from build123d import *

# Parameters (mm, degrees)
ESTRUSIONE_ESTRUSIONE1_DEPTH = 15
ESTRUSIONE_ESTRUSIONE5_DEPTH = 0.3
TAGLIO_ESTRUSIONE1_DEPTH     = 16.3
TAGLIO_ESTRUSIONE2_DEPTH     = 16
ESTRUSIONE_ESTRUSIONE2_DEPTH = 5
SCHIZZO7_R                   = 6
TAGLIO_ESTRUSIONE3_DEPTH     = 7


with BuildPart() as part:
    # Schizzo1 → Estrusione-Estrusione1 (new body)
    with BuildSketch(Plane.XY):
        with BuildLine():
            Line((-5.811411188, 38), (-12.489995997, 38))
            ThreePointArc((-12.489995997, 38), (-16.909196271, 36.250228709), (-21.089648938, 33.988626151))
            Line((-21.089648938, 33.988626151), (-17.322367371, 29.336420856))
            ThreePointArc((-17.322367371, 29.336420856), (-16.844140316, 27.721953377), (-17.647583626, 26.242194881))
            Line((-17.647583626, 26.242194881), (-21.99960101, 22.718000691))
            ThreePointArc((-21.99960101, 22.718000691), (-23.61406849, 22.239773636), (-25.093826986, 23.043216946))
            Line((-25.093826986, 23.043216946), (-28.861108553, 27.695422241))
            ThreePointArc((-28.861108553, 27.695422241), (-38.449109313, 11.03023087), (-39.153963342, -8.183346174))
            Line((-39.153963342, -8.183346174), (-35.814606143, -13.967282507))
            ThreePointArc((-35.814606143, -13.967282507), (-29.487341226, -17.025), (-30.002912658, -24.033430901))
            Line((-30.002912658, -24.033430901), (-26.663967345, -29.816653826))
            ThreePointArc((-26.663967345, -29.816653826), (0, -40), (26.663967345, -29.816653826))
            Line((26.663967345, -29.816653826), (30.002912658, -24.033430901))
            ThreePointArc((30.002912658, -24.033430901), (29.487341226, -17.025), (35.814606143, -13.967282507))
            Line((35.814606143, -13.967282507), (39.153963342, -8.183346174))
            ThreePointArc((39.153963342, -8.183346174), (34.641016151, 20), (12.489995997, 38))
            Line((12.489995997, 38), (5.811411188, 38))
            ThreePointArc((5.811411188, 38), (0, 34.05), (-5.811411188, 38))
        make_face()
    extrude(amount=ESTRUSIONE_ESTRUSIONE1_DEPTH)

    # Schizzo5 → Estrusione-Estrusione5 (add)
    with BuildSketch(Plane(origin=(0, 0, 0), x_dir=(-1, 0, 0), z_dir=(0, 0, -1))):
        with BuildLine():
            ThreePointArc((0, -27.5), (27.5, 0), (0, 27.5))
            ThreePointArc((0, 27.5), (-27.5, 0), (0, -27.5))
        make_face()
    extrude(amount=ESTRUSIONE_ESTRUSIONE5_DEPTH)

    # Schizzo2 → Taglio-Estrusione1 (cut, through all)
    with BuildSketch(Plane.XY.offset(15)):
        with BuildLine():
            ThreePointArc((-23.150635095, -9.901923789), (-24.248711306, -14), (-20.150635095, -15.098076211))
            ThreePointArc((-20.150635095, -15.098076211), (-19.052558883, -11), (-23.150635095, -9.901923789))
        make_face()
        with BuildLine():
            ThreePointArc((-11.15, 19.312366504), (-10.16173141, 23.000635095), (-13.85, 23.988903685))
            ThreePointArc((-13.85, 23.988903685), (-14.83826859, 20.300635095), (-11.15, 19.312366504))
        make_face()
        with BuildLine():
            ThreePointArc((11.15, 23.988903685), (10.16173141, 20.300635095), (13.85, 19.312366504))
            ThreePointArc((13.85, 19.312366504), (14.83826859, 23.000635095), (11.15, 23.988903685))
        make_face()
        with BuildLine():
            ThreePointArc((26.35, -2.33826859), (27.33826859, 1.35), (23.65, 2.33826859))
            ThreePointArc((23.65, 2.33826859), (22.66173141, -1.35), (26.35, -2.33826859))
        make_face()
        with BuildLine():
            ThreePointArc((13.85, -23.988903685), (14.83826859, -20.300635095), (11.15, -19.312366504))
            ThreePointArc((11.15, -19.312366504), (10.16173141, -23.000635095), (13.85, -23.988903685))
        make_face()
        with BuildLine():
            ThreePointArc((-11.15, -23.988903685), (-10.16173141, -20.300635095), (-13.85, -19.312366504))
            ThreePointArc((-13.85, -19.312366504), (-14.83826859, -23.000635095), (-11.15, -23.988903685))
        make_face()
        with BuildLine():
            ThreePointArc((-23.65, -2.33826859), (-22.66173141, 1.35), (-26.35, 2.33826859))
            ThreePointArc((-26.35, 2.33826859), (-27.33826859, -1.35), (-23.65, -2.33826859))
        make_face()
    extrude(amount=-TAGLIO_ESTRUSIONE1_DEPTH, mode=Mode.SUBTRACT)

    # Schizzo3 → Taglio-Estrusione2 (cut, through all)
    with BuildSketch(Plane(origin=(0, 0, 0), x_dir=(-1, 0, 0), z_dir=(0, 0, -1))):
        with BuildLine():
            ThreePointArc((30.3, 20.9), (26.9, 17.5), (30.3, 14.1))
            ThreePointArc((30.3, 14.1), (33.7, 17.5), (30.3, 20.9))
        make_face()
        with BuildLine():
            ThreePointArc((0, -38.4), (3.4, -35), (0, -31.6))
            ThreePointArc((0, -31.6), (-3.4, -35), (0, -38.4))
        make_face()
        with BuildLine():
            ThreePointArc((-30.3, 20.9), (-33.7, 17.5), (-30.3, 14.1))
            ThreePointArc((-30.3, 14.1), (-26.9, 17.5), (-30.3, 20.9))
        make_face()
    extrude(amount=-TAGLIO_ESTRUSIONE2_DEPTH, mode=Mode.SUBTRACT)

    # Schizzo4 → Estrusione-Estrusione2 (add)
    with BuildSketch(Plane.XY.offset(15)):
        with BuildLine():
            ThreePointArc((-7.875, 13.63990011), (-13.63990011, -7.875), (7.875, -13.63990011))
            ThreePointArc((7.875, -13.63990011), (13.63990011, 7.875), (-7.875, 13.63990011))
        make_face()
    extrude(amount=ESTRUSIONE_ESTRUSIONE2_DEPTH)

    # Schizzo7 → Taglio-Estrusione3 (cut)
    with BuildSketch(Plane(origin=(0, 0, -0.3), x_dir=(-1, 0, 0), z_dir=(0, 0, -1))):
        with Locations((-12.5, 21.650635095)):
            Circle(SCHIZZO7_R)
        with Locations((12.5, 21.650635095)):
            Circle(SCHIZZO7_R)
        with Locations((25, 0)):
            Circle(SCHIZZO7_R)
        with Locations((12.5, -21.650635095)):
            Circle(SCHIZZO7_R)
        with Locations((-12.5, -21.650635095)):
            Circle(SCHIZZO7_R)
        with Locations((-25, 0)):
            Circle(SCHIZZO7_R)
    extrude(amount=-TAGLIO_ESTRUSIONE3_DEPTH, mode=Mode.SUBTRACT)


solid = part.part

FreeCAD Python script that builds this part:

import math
import FreeCAD as App
import Part
import Sketcher
Q = App.Units.Quantity

doc = App.newDocument("Part")
body = doc.addObject("PartDesign::Body", "Body")

# Sketch on XY plane
sketch1 = body.newObject("Sketcher::SketchObject", "Sketch")
sketch1.AttachmentSupport = (doc.getObject("XY_Plane"), [""])
sketch1.MapMode = "FlatFace"
sketch1.addGeometry(Part.LineSegment(App.Vector(-5.8, 38, 0), App.Vector(-12.5, 38, 0)), False)
sketch1.addGeometry(Part.ArcOfCircle(Part.Circle(App.Vector(0, 0, 0), App.Vector(0, 0, 1), 40), math.radians(108.19), math.radians(121.82)), False)
sketch1.addGeometry(Part.LineSegment(App.Vector(-21.1, 34, 0), App.Vector(-17.3, 29.3, 0)), False)
sketch1.addGeometry(Part.ArcOfCircle(Part.Circle(App.Vector(-19, 28, 0), App.Vector(0, 0, 1), 2.2), math.radians(-51), math.radians(39)), False)
sketch1.addGeometry(Part.LineSegment(App.Vector(-17.6, 26.2, 0), App.Vector(-22, 22.7, 0)), False)
sketch1.addGeometry(Part.ArcOfCircle(Part.Circle(App.Vector(-23.4, 24.4, 0), App.Vector(0, 0, 1), 2.2), math.radians(-141), math.radians(-51)), False)
sketch1.addGeometry(Part.LineSegment(App.Vector(-25.1, 23, 0), App.Vector(-28.9, 27.7, 0)), False)
sketch1.addGeometry(Part.ArcOfCircle(Part.Circle(App.Vector(0, 0, 0), App.Vector(0, 0, 1), 40), math.radians(136), math.radians(192)), False)
sketch1.addGeometry(Part.LineSegment(App.Vector(-39.2, -8.2, 0), App.Vector(-35.8, -14, 0)), False)
sketch1.addGeometry(Part.ArcOfCircle(Part.Circle(App.Vector(-34.9, -20.1, 0), App.Vector(0, 0, 1), 6.2), math.radians(-38), math.radians(98)), False)
sketch1.addGeometry(Part.LineSegment(App.Vector(-30, -24, 0), App.Vector(-26.7, -29.8, 0)), False)
sketch1.addGeometry(Part.ArcOfCircle(Part.Circle(App.Vector(0, 0, 0), App.Vector(0, 0, 1), 40), math.radians(-132), math.radians(-48)), False)
sketch1.addGeometry(Part.LineSegment(App.Vector(26.7, -29.8, 0), App.Vector(30, -24, 0)), False)
sketch1.addGeometry(Part.ArcOfCircle(Part.Circle(App.Vector(34.9, -20.1, 0), App.Vector(0, 0, 1), 6.2), math.radians(82), math.radians(218)), False)
sketch1.addGeometry(Part.LineSegment(App.Vector(35.8, -14, 0), App.Vector(39.2, -8.2, 0)), False)
sketch1.addGeometry(Part.ArcOfCircle(Part.Circle(App.Vector(0, 0, 0), App.Vector(0, 0, 1), 40), math.radians(-12), math.radians(72)), False)
sketch1.addGeometry(Part.LineSegment(App.Vector(12.5, 38, 0), App.Vector(5.8, 38, 0)), False)
sketch1.addGeometry(Part.ArcOfCircle(Part.Circle(App.Vector(0, 40.3, 0), App.Vector(0, 0, 1), 6.2), math.radians(-158), math.radians(-22)), False)
sketch1.addConstraint(Sketcher.Constraint("Coincident", 0, 2, 1, 1))
sketch1.addConstraint(Sketcher.Constraint("Coincident", 1, 2, 2, 1))
sketch1.addConstraint(Sketcher.Constraint("Tangent", 2, 2, 3, 2))
sketch1.addConstraint(Sketcher.Constraint("Tangent", 3, 1, 4, 1))
sketch1.addConstraint(Sketcher.Constraint("Tangent", 4, 2, 5, 2))
sketch1.addConstraint(Sketcher.Constraint("Tangent", 5, 1, 6, 1))
sketch1.addConstraint(Sketcher.Constraint("Coincident", 6, 2, 7, 1))
sketch1.addConstraint(Sketcher.Constraint("Coincident", 7, 2, 8, 1))
sketch1.addConstraint(Sketcher.Constraint("Coincident", 8, 2, 9, 2))
sketch1.addConstraint(Sketcher.Constraint("Coincident", 9, 1, 10, 1))
sketch1.addConstraint(Sketcher.Constraint("Coincident", 10, 2, 11, 1))
sketch1.addConstraint(Sketcher.Constraint("Coincident", 11, 2, 12, 1))
sketch1.addConstraint(Sketcher.Constraint("Coincident", 12, 2, 13, 2))
sketch1.addConstraint(Sketcher.Constraint("Coincident", 13, 1, 14, 1))
sketch1.addConstraint(Sketcher.Constraint("Coincident", 14, 2, 15, 1))
sketch1.addConstraint(Sketcher.Constraint("Coincident", 15, 2, 16, 1))
sketch1.addConstraint(Sketcher.Constraint("Coincident", 16, 2, 17, 2))
sketch1.addConstraint(Sketcher.Constraint("Coincident", 17, 1, 0, 1))
sketch1.addConstraint(Sketcher.Constraint("Horizontal", 0))
sketch1.addConstraint(Sketcher.Constraint("Horizontal", 16))
sketch1.addConstraint(Sketcher.Constraint("Coincident", 1, 3, -1, 1))
sketch1.addConstraint(Sketcher.Constraint("Coincident", 7, 3, -1, 1))
sketch1.addConstraint(Sketcher.Constraint("Coincident", 11, 3, -1, 1))
sketch1.addConstraint(Sketcher.Constraint("Coincident", 15, 3, -1, 1))
sketch1.addConstraint(Sketcher.Constraint("Equal", 3, 5))
sketch1.addConstraint(Sketcher.Constraint("Equal", 1, 7))
sketch1.addConstraint(Sketcher.Constraint("Equal", 7, 11))
sketch1.addConstraint(Sketcher.Constraint("Equal", 9, 13))
sketch1.addConstraint(Sketcher.Constraint("Equal", 11, 15))
sketch1.addConstraint(Sketcher.Constraint("Equal", 13, 17))
sketch1.addConstraint(Sketcher.Constraint("Symmetric", 9, 3, 13, 3, -2))
sketch1.addConstraint(Sketcher.Constraint("Symmetric", 16, 2, 17, 1, -2))
sketch1.addConstraint(Sketcher.Constraint("Perpendicular", 2, 4))
sketch1.addConstraint(Sketcher.Constraint("Perpendicular", 4, 6))
sketch1.addConstraint(Sketcher.Constraint("Parallel", 8, 10))
sketch1.addConstraint(Sketcher.Constraint("Parallel", 12, 14))
sketch1.addConstraint(Sketcher.Constraint("Horizontal", 10, 2, 11, 2))
sketch1.addConstraint(Sketcher.Constraint("Horizontal", 9, 1, 12, 2))
sketch1.addConstraint(Sketcher.Constraint("Horizontal", 8, 2, 13, 1))
sketch1.addConstraint(Sketcher.Constraint("Equal", 2, 6))
sketch1.addConstraint(Sketcher.Constraint("Radius", 1, 40.0))
sketch1.addConstraint(Sketcher.Constraint("Radius", 3, 2.2))
sketch1.addConstraint(Sketcher.Constraint("Angle", 2, Q("-51 deg")))
sketch1.addConstraint(Sketcher.Constraint("Angle", 8, Q("-60 deg")))
sketch1.addConstraint(Sketcher.Constraint("Radius", 9, 6.25))
sketch1.addConstraint(Sketcher.Constraint("DistanceY", -1, 1, 0, 2, 38.0))
sketch1.addConstraint(Sketcher.Constraint("Distance", 4, 5.6))
sketch1.addConstraint(Sketcher.Constraint("DistanceX", 9, 3, -1, 1, 34.9))
sketch1.addConstraint(Sketcher.Constraint("DistanceY", -1, 1, 17, 3, 40.3))
sketch1.addConstraint(Sketcher.Constraint("DistanceY", 9, 3, -1, 1, 20.15))
sketch1.addConstraint(Sketcher.Constraint("DistanceY", -1, 1, 4, 2, 22.718001))
sketch1.addConstraint(Sketcher.Constraint("Distance", 10, 6.677891))
sketch1.addConstraint(Sketcher.Constraint("DistanceY", 7, 2, 6, 2, 35.878768))
pad1 = body.newObject("PartDesign::Pad", "Pad")
pad1.Profile = sketch1
pad1.Length = 15

# Sketch on XY plane
sketch2 = body.newObject("Sketcher::SketchObject", "Sketch001")
sketch2.AttachmentSupport = (doc.getObject("XY_Plane"), [""])
sketch2.MapMode = "FlatFace"
sketch2.addGeometry(Part.Circle(App.Vector(0, 0, 0), App.Vector(0, 0, 1), 28), False)
sketch2.addConstraint(Sketcher.Constraint("Coincident", 0, 3, -1, 1))
sketch2.addConstraint(Sketcher.Constraint("Diameter", 0, 55.0))
pad2 = body.newObject("PartDesign::Pad", "Pad001")
pad2.Profile = sketch2
pad2.Length = 0.3
pad2.Reversed = True

# Sketch on XY plane
sketch3 = body.newObject("Sketcher::SketchObject", "Sketch002")
sketch3.AttachmentSupport = (doc.getObject("XY_Plane"), [""])
sketch3.MapMode = "FlatFace"
sketch3.AttachmentOffset = App.Placement(App.Vector(0, 0, 15), App.Rotation())
sketch3.addGeometry(Part.ArcOfCircle(Part.Circle(App.Vector(-21.7, -12.5, 0), App.Vector(0, 0, 1), 3), math.radians(120), math.radians(300)), False)
sketch3.addGeometry(Part.ArcOfCircle(Part.Circle(App.Vector(-21.7, -12.5, 0), App.Vector(0, 0, 1), 3), math.radians(-60), math.radians(120)), False)
sketch3.addGeometry(Part.ArcOfCircle(Part.Circle(App.Vector(-12.5, 21.7, 0), App.Vector(0, 0, 1), 2.7), math.radians(-60), math.radians(120)), False)
sketch3.addGeometry(Part.ArcOfCircle(Part.Circle(App.Vector(-12.5, 21.7, 0), App.Vector(0, 0, 1), 2.7), math.radians(120), math.radians(300)), False)
sketch3.addGeometry(Part.ArcOfCircle(Part.Circle(App.Vector(12.5, 21.7, 0), App.Vector(0, 0, 1), 2.7), math.radians(120), math.radians(300)), False)
sketch3.addGeometry(Part.ArcOfCircle(Part.Circle(App.Vector(12.5, 21.7, 0), App.Vector(0, 0, 1), 2.7), math.radians(-60), math.radians(120)), False)
sketch3.addGeometry(Part.Circle(App.Vector(25, 0, 0), App.Vector(0, 0, 1), 2.7), False)
sketch3.addGeometry(Part.ArcOfCircle(Part.Circle(App.Vector(12.5, -21.7, 0), App.Vector(0, 0, 1), 2.7), math.radians(-60), math.radians(120)), False)
sketch3.addGeometry(Part.ArcOfCircle(Part.Circle(App.Vector(12.5, -21.7, 0), App.Vector(0, 0, 1), 2.7), math.radians(120), math.radians(300)), False)
sketch3.addGeometry(Part.ArcOfCircle(Part.Circle(App.Vector(-12.5, -21.7, 0), App.Vector(0, 0, 1), 2.7), math.radians(-60), math.radians(120)), False)
sketch3.addGeometry(Part.ArcOfCircle(Part.Circle(App.Vector(-12.5, -21.7, 0), App.Vector(0, 0, 1), 2.7), math.radians(120), math.radians(300)), False)
sketch3.addGeometry(Part.Circle(App.Vector(-25, 0, 0), App.Vector(0, 0, 1), 2.7), False)
sketch3.addConstraint(Sketcher.Constraint("Tangent", 0, 1, 1, 2))
sketch3.addConstraint(Sketcher.Constraint("Coincident", 1, 1, 0, 2))
sketch3.addConstraint(Sketcher.Constraint("Tangent", 2, 1, 3, 2))
sketch3.addConstraint(Sketcher.Constraint("Coincident", 3, 1, 2, 2))
sketch3.addConstraint(Sketcher.Constraint("Tangent", 4, 1, 5, 2))
sketch3.addConstraint(Sketcher.Constraint("Coincident", 5, 1, 4, 2))
sketch3.addConstraint(Sketcher.Constraint("Tangent", 7, 1, 8, 2))
sketch3.addConstraint(Sketcher.Constraint("Coincident", 8, 1, 7, 2))
sketch3.addConstraint(Sketcher.Constraint("Tangent", 9, 1, 10, 2))
sketch3.addConstraint(Sketcher.Constraint("Coincident", 10, 1, 9, 2))
sketch3.addConstraint(Sketcher.Constraint("Equal", 3, 4))
sketch3.addConstraint(Sketcher.Constraint("Equal", 5, 6))
sketch3.addConstraint(Sketcher.Constraint("Equal", 6, 7))
sketch3.addConstraint(Sketcher.Constraint("Equal", 8, 9))
sketch3.addConstraint(Sketcher.Constraint("Equal", 10, 11))
sketch3.addConstraint(Sketcher.Constraint("Symmetric", 2, 3, 7, 3, -1, 1))
sketch3.addConstraint(Sketcher.Constraint("Symmetric", 4, 3, 9, 3, -1, 1))
sketch3.addConstraint(Sketcher.Constraint("Symmetric", 6, 3, 11, 3, -1, 1))
sketch3.addConstraint(Sketcher.Constraint("Symmetric", 2, 3, 4, 3, -2))
sketch3.addConstraint(Sketcher.Constraint("PointOnObject", 6, 3, -1))
sketch3.addConstraint(Sketcher.Constraint("Horizontal", 3, 1, 4, 1))
sketch3.addConstraint(Sketcher.Constraint("Horizontal", 2, 1, 5, 1))
sketch3.addConstraint(Sketcher.Constraint("Horizontal", 7, 1, 9, 1))
sketch3.addConstraint(Sketcher.Constraint("Horizontal", 8, 1, 10, 1))
sketch3.addConstraint(Sketcher.Constraint("Vertical", 5, 1, 7, 1))
sketch3.addConstraint(Sketcher.Constraint("Vertical", 4, 1, 8, 1))
sketch3.addConstraint(Sketcher.Constraint("Radius", 0, 3.0))
sketch3.addConstraint(Sketcher.Constraint("Diameter", 6, 5.4))
sketch3.addConstraint(Sketcher.Constraint("DistanceX", -1, 1, 6, 3, 25.0))
sketch3.addConstraint(Sketcher.Constraint("DistanceX", 3, 3, 4, 3, 25.0))
sketch3.addConstraint(Sketcher.Constraint("DistanceX", 0, 1, 1, 1, 3.0))
sketch3.addConstraint(Sketcher.Constraint("DistanceY", 0, 3, -1, 1, 12.5))
sketch3.addConstraint(Sketcher.Constraint("DistanceX", 0, 1, 0, 3, 1.5))
sketch3.addConstraint(Sketcher.Constraint("DistanceX", 3, 1, 2, 1, 2.7))
sketch3.addConstraint(Sketcher.Constraint("DistanceX", 2, 1, -1, 1, 11.15))
sketch3.addConstraint(Sketcher.Constraint("DistanceY", 7, 3, 5, 3, 43.30127))
sketch3.addConstraint(Sketcher.Constraint("DistanceX", 0, 3, -1, 1, 21.650635))
pocket1 = body.newObject("PartDesign::Pocket", "Pocket")
pocket1.Profile = sketch3
pocket1.Type = "ThroughAll"

# Sketch on XY plane
sketch4 = body.newObject("Sketcher::SketchObject", "Sketch003")
sketch4.AttachmentSupport = (doc.getObject("XY_Plane"), [""])
sketch4.MapMode = "FlatFace"
sketch4.addGeometry(Part.Circle(App.Vector(-30.3, 17.5, 0), App.Vector(0, 0, 1), 3.4), False)
sketch4.addGeometry(Part.Circle(App.Vector(0, -35, 0), App.Vector(0, 0, 1), 3.4), False)
sketch4.addGeometry(Part.Circle(App.Vector(30.3, 17.5, 0), App.Vector(0, 0, 1), 3.4), False)
sketch4.addConstraint(Sketcher.Constraint("Equal", 0, 1))
sketch4.addConstraint(Sketcher.Constraint("Equal", 1, 2))
sketch4.addConstraint(Sketcher.Constraint("Symmetric", 0, 3, 2, 3, -2))
sketch4.addConstraint(Sketcher.Constraint("PointOnObject", 1, 3, -2))
sketch4.addConstraint(Sketcher.Constraint("Diameter", 0, 6.8))
sketch4.addConstraint(Sketcher.Constraint("DistanceY", 1, 3, -1, 1, 35.0))
sketch4.addConstraint(Sketcher.Constraint("DistanceX", 0, 3, -1, 1, 30.3))
sketch4.addConstraint(Sketcher.Constraint("DistanceY", -1, 1, 0, 3, 17.5))
pocket2 = body.newObject("PartDesign::Pocket", "Pocket001")
pocket2.Profile = sketch4
pocket2.Type = "ThroughAll"
pocket2.Reversed = True

# Sketch on XY plane
sketch5 = body.newObject("Sketcher::SketchObject", "Sketch004")
sketch5.AttachmentSupport = (doc.getObject("XY_Plane"), [""])
sketch5.MapMode = "FlatFace"
sketch5.AttachmentOffset = App.Placement(App.Vector(0, 0, 15), App.Rotation())
sketch5.addGeometry(Part.Circle(App.Vector(0, 0, 0), App.Vector(0, 0, 1), 16), False)
sketch5.addConstraint(Sketcher.Constraint("Coincident", 0, 3, -1, 1))
sketch5.addConstraint(Sketcher.Constraint("Diameter", 0, 31.5))
pad3 = body.newObject("PartDesign::Pad", "Pad002")
pad3.Profile = sketch5
pad3.Length = 5

# Sketch on XY plane
sketch6 = body.newObject("Sketcher::SketchObject", "Sketch005")
sketch6.AttachmentSupport = (doc.getObject("XY_Plane"), [""])
sketch6.MapMode = "FlatFace"
sketch6.AttachmentOffset = App.Placement(App.Vector(0, 0, -0.3), App.Rotation())
sketch6.addGeometry(Part.Circle(App.Vector(12, 22, 0), App.Vector(0, 0, 1), 6), False)
sketch6.addGeometry(Part.Circle(App.Vector(-12, 22, 0), App.Vector(0, 0, 1), 6), False)
sketch6.addGeometry(Part.Circle(App.Vector(-25, 0, 0), App.Vector(0, 0, 1), 6), False)
sketch6.addGeometry(Part.Circle(App.Vector(-12, -22, 0), App.Vector(0, 0, 1), 6), False)
sketch6.addGeometry(Part.Circle(App.Vector(12, -22, 0), App.Vector(0, 0, 1), 6), False)
sketch6.addGeometry(Part.Circle(App.Vector(25, 0, 0), App.Vector(0, 0, 1), 6), False)
sketch6.addConstraint(Sketcher.Constraint("Equal", 0, 1))
sketch6.addConstraint(Sketcher.Constraint("Equal", 1, 2))
sketch6.addConstraint(Sketcher.Constraint("Equal", 2, 3))
sketch6.addConstraint(Sketcher.Constraint("Equal", 3, 4))
sketch6.addConstraint(Sketcher.Constraint("Equal", 4, 5))
sketch6.addConstraint(Sketcher.Constraint("Symmetric", 0, 3, 3, 3, -1, 1))
sketch6.addConstraint(Sketcher.Constraint("Symmetric", 1, 3, 4, 3, -1, 1))
sketch6.addConstraint(Sketcher.Constraint("Symmetric", 2, 3, 5, 3, -1, 1))
sketch6.addConstraint(Sketcher.Constraint("Symmetric", 0, 3, 1, 3, -2))
sketch6.addConstraint(Sketcher.Constraint("PointOnObject", 2, 3, -1))
sketch6.addConstraint(Sketcher.Constraint("Diameter", 0, 12.0))
sketch6.addConstraint(Sketcher.Constraint("DistanceX", 2, 3, -1, 1, 25.0))
sketch6.addConstraint(Sketcher.Constraint("DistanceX", 1, 3, 0, 3, 25.0))
sketch6.addConstraint(Sketcher.Constraint("DistanceY", 3, 3, 1, 3, 43.30127))
pocket3 = body.newObject("PartDesign::Pocket", "Pocket002")
pocket3.Profile = sketch6
pocket3.Length = 7
pocket3.Reversed = True

doc.recompute()
